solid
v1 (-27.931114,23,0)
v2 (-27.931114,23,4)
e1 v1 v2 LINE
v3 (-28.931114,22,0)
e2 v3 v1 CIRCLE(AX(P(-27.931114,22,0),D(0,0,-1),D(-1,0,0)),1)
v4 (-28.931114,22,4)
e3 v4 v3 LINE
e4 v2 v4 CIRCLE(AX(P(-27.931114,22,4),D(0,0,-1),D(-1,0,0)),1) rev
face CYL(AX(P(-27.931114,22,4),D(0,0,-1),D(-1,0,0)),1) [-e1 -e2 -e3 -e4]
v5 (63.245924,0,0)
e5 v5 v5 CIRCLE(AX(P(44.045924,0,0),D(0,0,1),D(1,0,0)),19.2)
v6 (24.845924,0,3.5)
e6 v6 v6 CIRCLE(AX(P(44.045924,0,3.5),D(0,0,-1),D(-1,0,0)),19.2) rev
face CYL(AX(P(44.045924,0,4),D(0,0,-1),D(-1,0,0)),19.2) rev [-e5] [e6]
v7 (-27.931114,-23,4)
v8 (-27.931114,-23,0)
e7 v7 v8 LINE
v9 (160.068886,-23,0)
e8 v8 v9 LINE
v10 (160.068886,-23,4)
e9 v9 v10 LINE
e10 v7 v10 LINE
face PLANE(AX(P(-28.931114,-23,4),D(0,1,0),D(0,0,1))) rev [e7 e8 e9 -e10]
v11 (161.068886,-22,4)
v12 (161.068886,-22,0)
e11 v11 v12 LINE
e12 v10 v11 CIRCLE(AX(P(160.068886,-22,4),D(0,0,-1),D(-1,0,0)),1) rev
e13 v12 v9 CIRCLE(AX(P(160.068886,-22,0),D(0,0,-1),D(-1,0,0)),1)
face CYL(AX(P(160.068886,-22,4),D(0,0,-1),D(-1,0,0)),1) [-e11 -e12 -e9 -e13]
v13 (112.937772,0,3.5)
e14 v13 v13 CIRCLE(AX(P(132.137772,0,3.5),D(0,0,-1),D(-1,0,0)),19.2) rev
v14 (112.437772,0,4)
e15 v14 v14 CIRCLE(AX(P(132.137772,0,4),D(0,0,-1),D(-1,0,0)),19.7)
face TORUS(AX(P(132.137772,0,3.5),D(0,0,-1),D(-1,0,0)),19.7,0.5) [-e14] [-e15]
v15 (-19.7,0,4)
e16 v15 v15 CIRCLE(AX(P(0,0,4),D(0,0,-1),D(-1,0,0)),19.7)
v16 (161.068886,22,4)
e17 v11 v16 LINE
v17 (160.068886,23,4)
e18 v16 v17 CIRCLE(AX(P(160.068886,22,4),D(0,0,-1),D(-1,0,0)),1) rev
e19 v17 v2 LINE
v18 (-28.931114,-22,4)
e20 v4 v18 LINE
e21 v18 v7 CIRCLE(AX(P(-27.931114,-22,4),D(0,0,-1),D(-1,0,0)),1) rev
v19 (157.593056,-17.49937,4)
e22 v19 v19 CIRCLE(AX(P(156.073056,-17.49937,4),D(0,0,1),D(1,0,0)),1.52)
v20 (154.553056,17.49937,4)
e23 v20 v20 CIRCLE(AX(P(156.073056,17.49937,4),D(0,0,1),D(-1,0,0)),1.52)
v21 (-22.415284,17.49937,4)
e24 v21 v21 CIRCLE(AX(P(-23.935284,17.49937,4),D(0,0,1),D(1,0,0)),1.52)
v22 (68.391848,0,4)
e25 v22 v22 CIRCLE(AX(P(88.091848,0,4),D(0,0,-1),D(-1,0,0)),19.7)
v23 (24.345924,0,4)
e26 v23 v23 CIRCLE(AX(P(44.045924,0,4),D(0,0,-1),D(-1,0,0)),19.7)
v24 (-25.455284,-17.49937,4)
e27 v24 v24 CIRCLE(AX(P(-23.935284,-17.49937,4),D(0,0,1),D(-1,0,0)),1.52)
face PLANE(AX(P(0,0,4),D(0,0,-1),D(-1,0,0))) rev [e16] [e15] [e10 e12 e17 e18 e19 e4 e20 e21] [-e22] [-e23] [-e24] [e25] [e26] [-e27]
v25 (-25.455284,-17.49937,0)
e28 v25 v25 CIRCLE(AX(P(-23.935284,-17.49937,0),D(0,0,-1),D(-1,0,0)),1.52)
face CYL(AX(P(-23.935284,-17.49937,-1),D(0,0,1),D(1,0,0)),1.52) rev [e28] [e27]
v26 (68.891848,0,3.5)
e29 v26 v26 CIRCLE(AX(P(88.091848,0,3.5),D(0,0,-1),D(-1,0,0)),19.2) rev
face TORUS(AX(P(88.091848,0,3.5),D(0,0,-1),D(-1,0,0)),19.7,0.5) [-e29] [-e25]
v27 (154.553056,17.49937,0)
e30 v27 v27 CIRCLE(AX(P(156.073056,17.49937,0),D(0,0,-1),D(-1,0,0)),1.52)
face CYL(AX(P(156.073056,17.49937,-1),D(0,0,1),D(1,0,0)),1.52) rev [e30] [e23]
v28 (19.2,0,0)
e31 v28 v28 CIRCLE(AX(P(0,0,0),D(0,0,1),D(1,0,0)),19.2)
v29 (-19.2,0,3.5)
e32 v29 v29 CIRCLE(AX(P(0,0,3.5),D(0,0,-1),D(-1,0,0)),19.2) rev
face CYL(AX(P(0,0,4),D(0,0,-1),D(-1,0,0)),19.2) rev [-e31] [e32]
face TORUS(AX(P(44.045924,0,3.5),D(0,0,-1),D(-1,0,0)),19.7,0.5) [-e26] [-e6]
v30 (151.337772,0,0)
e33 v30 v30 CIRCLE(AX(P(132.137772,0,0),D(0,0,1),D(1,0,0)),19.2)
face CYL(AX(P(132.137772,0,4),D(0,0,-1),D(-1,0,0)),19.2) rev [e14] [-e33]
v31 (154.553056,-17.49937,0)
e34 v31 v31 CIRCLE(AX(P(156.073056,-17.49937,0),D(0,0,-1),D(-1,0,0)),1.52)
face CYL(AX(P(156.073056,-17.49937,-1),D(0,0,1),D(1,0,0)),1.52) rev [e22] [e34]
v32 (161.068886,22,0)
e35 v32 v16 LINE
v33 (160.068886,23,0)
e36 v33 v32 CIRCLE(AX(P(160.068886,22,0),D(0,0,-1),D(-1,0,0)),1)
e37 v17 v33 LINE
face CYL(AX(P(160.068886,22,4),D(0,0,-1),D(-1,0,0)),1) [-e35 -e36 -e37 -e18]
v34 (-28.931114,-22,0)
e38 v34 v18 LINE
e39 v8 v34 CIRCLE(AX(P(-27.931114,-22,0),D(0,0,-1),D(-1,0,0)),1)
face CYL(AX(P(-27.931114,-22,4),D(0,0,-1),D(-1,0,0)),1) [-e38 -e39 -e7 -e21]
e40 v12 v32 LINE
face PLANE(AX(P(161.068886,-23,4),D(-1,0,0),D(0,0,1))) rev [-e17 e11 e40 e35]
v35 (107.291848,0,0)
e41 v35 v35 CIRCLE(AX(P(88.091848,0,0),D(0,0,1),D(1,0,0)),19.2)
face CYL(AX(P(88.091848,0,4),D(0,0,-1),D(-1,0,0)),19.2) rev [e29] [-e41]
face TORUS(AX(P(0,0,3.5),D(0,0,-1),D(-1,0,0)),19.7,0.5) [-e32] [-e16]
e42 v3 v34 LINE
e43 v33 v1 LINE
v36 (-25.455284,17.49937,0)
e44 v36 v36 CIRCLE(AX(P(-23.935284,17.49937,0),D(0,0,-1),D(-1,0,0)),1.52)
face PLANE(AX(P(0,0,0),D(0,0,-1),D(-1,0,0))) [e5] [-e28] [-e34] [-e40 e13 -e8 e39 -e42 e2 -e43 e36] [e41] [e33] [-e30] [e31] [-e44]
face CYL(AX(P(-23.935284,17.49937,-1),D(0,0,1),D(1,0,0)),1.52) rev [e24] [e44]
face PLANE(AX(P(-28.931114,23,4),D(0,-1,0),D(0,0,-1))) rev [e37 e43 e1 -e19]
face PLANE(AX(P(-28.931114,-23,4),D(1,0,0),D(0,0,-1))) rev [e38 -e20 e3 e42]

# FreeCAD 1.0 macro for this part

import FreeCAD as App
import Part
import Sketcher

V = App.Vector
Q = App.Units.Quantity


def edges_at(feature, points):
    """Names of the edges that pass closest to the given points."""
    edges = feature.Shape.Edges
    near = lambda p: min(range(len(edges)), key=lambda i: edges[i].distToShape(Part.Vertex(*p))[0])
    return sorted({f"Edge{near(p) + 1}" for p in points})


def add_polygon(sketch, points):
    """Adds a closed chain of lines whose ends are joined by coincident constraints."""
    first, n = sketch.GeometryCount, len(points)
    for a, b in zip(points, points[1:] + points[:1]):
        sketch.addGeometry(Part.LineSegment(App.Vector(*a, 0), App.Vector(*b, 0)), False)
    for i in range(n):
        sketch.addConstraint(Sketcher.Constraint("Coincident", first + i, 2, first + (i + 1) % n, 1))

doc = App.newDocument("Part")
body = doc.addObject("PartDesign::Body", "Body")

# Sketch on XY plane
sketch1 = body.newObject("Sketcher::SketchObject", "Sketch")
sketch1.AttachmentSupport = (doc.getObject("XY_Plane"), [""])
sketch1.MapMode = "FlatFace"
add_polygon(sketch1, [(-29, 23), (-29, -23), (161, -23), (161, 23)])  # lines 0-3
sketch1.addGeometry(Part.Circle(V(0, 0, 0), V(0, 0, 1), 19), False)  # 4
sketch1.addGeometry(Part.Circle(V(44, 0, 0), V(0, 0, 1), 19), False)  # 5
sketch1.addGeometry(Part.Circle(V(88, 0, 0), V(0, 0, 1), 19), False)  # 6
sketch1.addGeometry(Part.Circle(V(132, 0, 0), V(0, 0, 1), 19), False)  # 7
sketch1.addConstraint(Sketcher.Constraint("Vertical", 0))
sketch1.addConstraint(Sketcher.Constraint("Horizontal", 1))
sketch1.addConstraint(Sketcher.Constraint("Vertical", 2))
sketch1.addConstraint(Sketcher.Constraint("Horizontal", 3))
sketch1.addConstraint(Sketcher.Constraint("Coincident", 4, 3, -1, 1))
sketch1.addConstraint(Sketcher.Constraint("Equal", 4, 5))
sketch1.addConstraint(Sketcher.Constraint("Equal", 5, 6))
sketch1.addConstraint(Sketcher.Constraint("Equal", 6, 7))
sketch1.addConstraint(Sketcher.Constraint("PointOnObject", 5, 3, -1))
sketch1.addConstraint(Sketcher.Constraint("PointOnObject", 6, 3, -1))
sketch1.addConstraint(Sketcher.Constraint("PointOnObject", 7, 3, -1))
sketch1.addConstraint(Sketcher.Constraint("Diameter", 4, Q("38.4 mm")))
sketch1.addConstraint(Sketcher.Constraint("DistanceX", 1, 1, 1, 2, Q("190 mm")))
sketch1.addConstraint(Sketcher.Constraint("DistanceY", 0, 2, 0, 1, Q("46 mm")))
sketch1.addConstraint(Sketcher.Constraint("DistanceY", 0, 2, -1, 1, Q("23 mm")))
sketch1.addConstraint(Sketcher.Constraint("DistanceX", -1, 1, 6, 3, Q("88.091848 mm")))
sketch1.addConstraint(Sketcher.Constraint("DistanceX", 5, 3, 7, 3, Q("88.091848 mm")))
sketch1.addConstraint(Sketcher.Constraint("DistanceX", -1, 1, 5, 3, Q("44.045924 mm")))
sketch1.addConstraint(Sketcher.Constraint("DistanceX", 0, 2, -1, 1, Q("28.931114 mm")))
pad1 = body.newObject("PartDesign::Pad", "Pad")
pad1.Profile = sketch1
pad1.Length = 4

# Sketch on XY plane
sketch2 = body.newObject("Sketcher::SketchObject", "Sketch001")
sketch2.AttachmentSupport = (doc.getObject("XY_Plane"), [""])
sketch2.MapMode = "FlatFace"
sketch2.AttachmentOffset = App.Placement(V(0, 0, 4), App.Rotation())
sketch2.addGeometry(Part.Circle(V(-23.9, 17.5, 0), V(0, 0, 1), 1.5), False)
sketch2.addGeometry(Part.Circle(V(-23.9, -17.5, 0), V(0, 0, 1), 1.5), False)
sketch2.addGeometry(Part.Circle(V(156.1, -17.5, 0), V(0, 0, 1), 1.5), False)
sketch2.addGeometry(Part.Circle(V(156.1, 17.5, 0), V(0, 0, 1), 1.5), False)
sketch2.addConstraint(Sketcher.Constraint("Equal", 0, 1))
sketch2.addConstraint(Sketcher.Constraint("Equal", 1, 2))
sketch2.addConstraint(Sketcher.Constraint("Equal", 2, 3))
sketch2.addConstraint(Sketcher.Constraint("Symmetric", 0, 3, 1, 3, -1))
sketch2.addConstraint(Sketcher.Constraint("Symmetric", 2, 3, 3, 3, -1))
sketch2.addConstraint(Sketcher.Constraint("Horizontal", 1, 3, 2, 3))
sketch2.addConstraint(Sketcher.Constraint("Diameter", 0, Q("3.04 mm")))
sketch2.addConstraint(Sketcher.Constraint("DistanceY", -1, 1, 0, 3, Q("17.49937 mm")))
sketch2.addConstraint(Sketcher.Constraint("DistanceX", 1, 3, 2, 3, Q("180.00834 mm")))
sketch2.addConstraint(Sketcher.Constraint("DistanceX", 0, 3, -1, 1, Q("23.935284 mm")))
pocket1 = body.newObject("PartDesign::Pocket", "Pocket")
pocket1.Profile = sketch2
pocket1.Length = 5
doc.recompute()

fillet = body.newObject("PartDesign::Fillet", "Fillet")
fillet.Base = (pocket1, edges_at(pocket1, [
    (161.069, -23, 2),
    (-28.931, -23, 2),
    (-28.931, 23, 2),
    (161.069, 23, 2),
]))
fillet.Radius = 1
doc.recompute()

fillet2 = body.newObject("PartDesign::Fillet", "Fillet001")
fillet2.Base = (fillet, edges_at(fillet, [
    (-19.2, 0, 4),
    (24.846, 0, 4),
    (68.892, 0, 4),
    (112.938, 0, 4),
]))
fillet2.Radius = 0.5

doc.recompute()
